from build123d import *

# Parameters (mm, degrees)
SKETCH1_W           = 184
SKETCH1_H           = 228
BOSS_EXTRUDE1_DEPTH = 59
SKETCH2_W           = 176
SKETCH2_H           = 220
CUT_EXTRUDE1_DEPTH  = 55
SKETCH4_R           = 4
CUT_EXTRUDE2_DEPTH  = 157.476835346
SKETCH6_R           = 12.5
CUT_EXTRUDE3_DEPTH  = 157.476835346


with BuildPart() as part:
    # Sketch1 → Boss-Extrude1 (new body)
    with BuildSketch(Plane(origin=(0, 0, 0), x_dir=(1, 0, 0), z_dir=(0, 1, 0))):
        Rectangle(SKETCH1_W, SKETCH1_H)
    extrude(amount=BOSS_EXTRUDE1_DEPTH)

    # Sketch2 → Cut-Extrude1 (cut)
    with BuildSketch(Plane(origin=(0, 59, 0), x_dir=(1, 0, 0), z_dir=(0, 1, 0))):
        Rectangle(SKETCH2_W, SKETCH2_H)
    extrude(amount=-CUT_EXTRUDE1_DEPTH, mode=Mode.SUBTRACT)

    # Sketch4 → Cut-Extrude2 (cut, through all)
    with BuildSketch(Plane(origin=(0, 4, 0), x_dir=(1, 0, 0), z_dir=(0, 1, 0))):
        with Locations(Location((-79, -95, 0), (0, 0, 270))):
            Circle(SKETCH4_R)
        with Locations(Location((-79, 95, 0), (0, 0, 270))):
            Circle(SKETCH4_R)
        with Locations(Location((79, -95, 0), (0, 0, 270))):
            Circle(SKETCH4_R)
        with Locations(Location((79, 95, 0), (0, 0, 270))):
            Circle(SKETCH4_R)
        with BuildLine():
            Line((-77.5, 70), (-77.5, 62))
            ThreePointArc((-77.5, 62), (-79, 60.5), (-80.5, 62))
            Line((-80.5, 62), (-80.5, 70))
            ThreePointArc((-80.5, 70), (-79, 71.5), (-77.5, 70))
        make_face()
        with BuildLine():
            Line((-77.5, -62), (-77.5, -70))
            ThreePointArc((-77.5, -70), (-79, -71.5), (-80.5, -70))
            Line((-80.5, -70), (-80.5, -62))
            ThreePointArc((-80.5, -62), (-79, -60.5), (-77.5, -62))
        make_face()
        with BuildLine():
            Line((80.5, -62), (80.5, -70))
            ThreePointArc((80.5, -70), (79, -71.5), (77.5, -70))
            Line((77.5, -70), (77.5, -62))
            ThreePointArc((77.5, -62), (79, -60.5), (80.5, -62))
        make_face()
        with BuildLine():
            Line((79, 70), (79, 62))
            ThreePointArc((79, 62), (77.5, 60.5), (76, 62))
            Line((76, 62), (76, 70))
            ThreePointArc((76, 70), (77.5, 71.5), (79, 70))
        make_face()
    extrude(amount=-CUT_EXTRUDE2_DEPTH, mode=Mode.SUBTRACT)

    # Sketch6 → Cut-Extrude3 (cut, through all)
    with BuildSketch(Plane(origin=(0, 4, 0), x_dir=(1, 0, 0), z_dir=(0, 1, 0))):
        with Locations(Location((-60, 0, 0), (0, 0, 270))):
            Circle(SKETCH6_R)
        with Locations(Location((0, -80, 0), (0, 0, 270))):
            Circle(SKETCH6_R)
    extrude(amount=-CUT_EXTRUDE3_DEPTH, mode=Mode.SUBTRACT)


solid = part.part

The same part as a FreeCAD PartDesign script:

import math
import FreeCAD as App
import Part
import Sketcher
from FreeCAD import Vector


def add_polygon(sketch, points):
    """Adds a closed chain of lines whose ends are joined by coincident constraints."""
    first, n = sketch.GeometryCount, len(points)
    for a, b in zip(points, points[1:] + points[:1]):
        sketch.addGeometry(Part.LineSegment(App.Vector(*a, 0), App.Vector(*b, 0)), False)
    for i in range(n):
        sketch.addConstraint(Sketcher.Constraint("Coincident", first + i, 2, first + (i + 1) % n, 1))

doc = App.newDocument("Part")
body = doc.addObject("PartDesign::Body", "Body")

# Sketch on XZ plane
sketch1 = doc.addObject("Sketcher::SketchObject", "Sketch")
body.addObject(sketch1)
sketch1.AttachmentSupport = (doc.XZ_Plane, [""])
sketch1.MapMode = "FlatFace"
add_polygon(sketch1, [(-92, -114), (-92, 114), (92, 114), (92, -114)])  # lines 0-3
sketch1.addConstraint([
    Sketcher.Constraint("Vertical", 0),
    Sketcher.Constraint("Horizontal", 1),
    Sketcher.Constraint("Vertical", 2),
    Sketcher.Constraint("Horizontal", 3),
    Sketcher.Constraint("Symmetric", 0, 2, 2, 2, -1, 1),
    Sketcher.Constraint("DistanceX", 1, 1, 1, 2, 184.0),
    Sketcher.Constraint("DistanceY", 0, 1, 0, 2, 228.0),
])
pad1 = doc.addObject("PartDesign::Pad", "Pad")
body.addObject(pad1)
pad1.Profile = sketch1
pad1.Length = 59
pad1.Reversed = True

# Sketch on XZ plane
sketch2 = doc.addObject("Sketcher::SketchObject", "Sketch001")
body.addObject(sketch2)
sketch2.AttachmentSupport = (doc.XZ_Plane, [""])
sketch2.MapMode = "FlatFace"
sketch2.AttachmentOffset = App.Placement(Vector(0, 0, -59), App.Rotation())
add_polygon(sketch2, [(-88, -110), (-88, 110), (88, 110), (88, -110)])  # lines 0-3
sketch2.addConstraint([
    Sketcher.Constraint("Vertical", 0),
    Sketcher.Constraint("Horizontal", 1),
    Sketcher.Constraint("Vertical", 2),
    Sketcher.Constraint("Horizontal", 3),
    Sketcher.Constraint("Symmetric", 0, 2, 2, 2, -1, 1),
    Sketcher.Constraint("DistanceX", 1, 1, 1, 2, 176.0),
    Sketcher.Constraint("DistanceY", 0, 1, 0, 2, 220.0),
])
pocket1 = doc.addObject("PartDesign::Pocket", "Pocket")
body.addObject(pocket1)
pocket1.Profile = sketch2
pocket1.Length = 55
pocket1.Reversed = True

# Sketch on XZ plane
sketch3 = doc.addObject("Sketcher::SketchObject", "Sketch002")
body.addObject(sketch3)
sketch3.AttachmentSupport = (doc.XZ_Plane, [""])
sketch3.MapMode = "FlatFace"
sketch3.AttachmentOffset = App.Placement(Vector(0, 0, -4), App.Rotation())
sketch3.addGeometry([
    Part.Circle(Vector(-79, 95, 0), Vector(0, 0, 1), 4),  # 0
    Part.Circle(Vector(-79, -95, 0), Vector(0, 0, 1), 4),  # 1
    Part.Circle(Vector(79, 95, 0), Vector(0, 0, 1), 4),  # 2
    Part.Circle(Vector(79, -95, 0), Vector(0, 0, 1), 4),  # 3
    Part.LineSegment(Vector(-77.5, -62, 0), Vector(-77.5, -70, 0)),  # 4
    Part.ArcOfCircle(Part.Circle(Vector(-79, -70, 0), Vector(0, 0, 1), 1.5), math.radians(180), math.radians(360)),  # 5
    Part.LineSegment(Vector(-80.5, -70, 0), Vector(-80.5, -62, 0)),  # 6
    Part.ArcOfCircle(Part.Circle(Vector(-79, -62, 0), Vector(0, 0, 1), 1.5), math.radians(0), math.radians(180)),  # 7
    Part.LineSegment(Vector(-77.5, 70, 0), Vector(-77.5, 62, 0)),  # 8
    Part.ArcOfCircle(Part.Circle(Vector(-79, 62, 0), Vector(0, 0, 1), 1.5), math.radians(180), math.radians(360)),  # 9
    Part.LineSegment(Vector(-80.5, 62, 0), Vector(-80.5, 70, 0)),  # 10
    Part.ArcOfCircle(Part.Circle(Vector(-79, 70, 0), Vector(0, 0, 1), 1.5), math.radians(0), math.radians(180)),  # 11
    Part.LineSegment(Vector(80.5, 70, 0), Vector(80.5, 62, 0)),  # 12
    Part.ArcOfCircle(Part.Circle(Vector(79, 62, 0), Vector(0, 0, 1), 1.5), math.radians(180), math.radians(360)),  # 13
    Part.LineSegment(Vector(77.5, 62, 0), Vector(77.5, 70, 0)),  # 14
    Part.ArcOfCircle(Part.Circle(Vector(79, 70, 0), Vector(0, 0, 1), 1.5), math.radians(0), math.radians(180)),  # 15
    Part.LineSegment(Vector(79, -62, 0), Vector(79, -70, 0)),  # 16
    Part.ArcOfCircle(Part.Circle(Vector(77.5, -70, 0), Vector(0, 0, 1), 1.5), math.radians(180), math.radians(360)),  # 17
    Part.LineSegment(Vector(76, -70, 0), Vector(76, -62, 0)),  # 18
    Part.ArcOfCircle(Part.Circle(Vector(77.5, -62, 0), Vector(0, 0, 1), 1.5), math.radians(0), math.radians(180)),  # 19
], False)
sketch3.addConstraint([
    Sketcher.Constraint("Tangent", 4, 2, 5, 2),
    Sketcher.Constraint("Tangent", 5, 1, 6, 1),
    Sketcher.Constraint("Tangent", 6, 2, 7, 2),
    Sketcher.Constraint("Tangent", 7, 1, 4, 1),
    Sketcher.Constraint("Tangent", 8, 2, 9, 2),
    Sketcher.Constraint("Tangent", 9, 1, 10, 1),
    Sketcher.Constraint("Tangent", 10, 2, 11, 2),
    Sketcher.Constraint("Tangent", 11, 1, 8, 1),
    Sketcher.Constraint("Tangent", 12, 2, 13, 2),
    Sketcher.Constraint("Tangent", 13, 1, 14, 1),
    Sketcher.Constraint("Tangent", 14, 2, 15, 2),
    Sketcher.Constraint("Tangent", 15, 1, 12, 1),
    Sketcher.Constraint("Tangent", 16, 2, 17, 2),
    Sketcher.Constraint("Tangent", 17, 1, 18, 1),
    Sketcher.Constraint("Tangent", 18, 2, 19, 2),
    Sketcher.Constraint("Tangent", 19, 1, 16, 1),
    Sketcher.Constraint("Vertical", 4),
    Sketcher.Constraint("Vertical", 6),
    Sketcher.Constraint("Vertical", 8),
    Sketcher.Constraint("Vertical", 10),
    Sketcher.Constraint("Vertical", 12),
    Sketcher.Constraint("Vertical", 14),
    Sketcher.Constraint("Vertical", 16),
    Sketcher.Constraint("Vertical", 18),
    Sketcher.Constraint("Equal", 0, 1),
    Sketcher.Constraint("Equal", 1, 2),
    Sketcher.Constraint("Equal", 2, 3),
    Sketcher.Constraint("Equal", 7, 9),
    Sketcher.Constraint("Equal", 11, 13),
    Sketcher.Constraint("Equal", 15, 17),
    Sketcher.Constraint("Symmetric", 1, 3, 2, 3, -1, 1),
    Sketcher.Constraint("Symmetric", 0, 3, 3, 3, -1, 1),
    Sketcher.Constraint("Symmetric", 7, 3, 13, 3, -1, 1),
    Sketcher.Constraint("Symmetric", 0, 3, 2, 3, -2),
    Sketcher.Constraint("Symmetric", 9, 3, 13, 3, -2),
    Sketcher.Constraint("Horizontal", 11, 3, 15, 3),
    Sketcher.Constraint("Horizontal", 5, 3, 17, 3),
    Sketcher.Constraint("Horizontal", 7, 3, 19, 3),
    Sketcher.Constraint("Vertical", 1, 3, 5, 3),
    Sketcher.Constraint("Vertical", 19, 3, 13, 1),
    Sketcher.Constraint("Equal", 6, 8),
    Sketcher.Constraint("Diameter", 0, 8.0),
    Sketcher.Constraint("Radius", 5, 1.5),
    Sketcher.Constraint("DistanceY", 4, 2, 4, 1, 8.0),
    Sketcher.Constraint("DistanceX", 0, 3, -1, 1, 79.0),
    Sketcher.Constraint("DistanceY", -1, 1, 0, 3, 95.0),
    Sketcher.Constraint("DistanceY", 5, 3, -1, 1, 70.0),
])
pocket2 = doc.addObject("PartDesign::Pocket", "Pocket001")
body.addObject(pocket2)
pocket2.Profile = sketch3
pocket2.Type = "ThroughAll"
pocket2.Reversed = True

# Sketch on XZ plane
sketch4 = doc.addObject("Sketcher::SketchObject", "Sketch003")
body.addObject(sketch4)
sketch4.AttachmentSupport = (doc.XZ_Plane, [""])
sketch4.MapMode = "FlatFace"
sketch4.AttachmentOffset = App.Placement(Vector(0, 0, -4), App.Rotation())
sketch4.addGeometry([
    Part.Circle(Vector(-60, 0, 0), Vector(0, 0, 1), 12.5),
    Part.Circle(Vector(0, 80, 0), Vector(0, 0, 1), 12.5),
], False)
sketch4.addConstraint([
    Sketcher.Constraint("Equal", 0, 1),
    Sketcher.Constraint("PointOnObject", 0, 3, -1),
    Sketcher.Constraint("PointOnObject", 1, 3, -2),
    Sketcher.Constraint("Diameter", 0, 25.0),
    Sketcher.Constraint("DistanceX", 0, 3, -1, 1, 60.0),
    Sketcher.Constraint("DistanceY", -1, 1, 1, 3, 80.0),
])
pocket3 = doc.addObject("PartDesign::Pocket", "Pocket002")
body.addObject(pocket3)
pocket3.Profile = sketch4
pocket3.Type = "ThroughAll"
pocket3.Reversed = True

doc.recompute()
